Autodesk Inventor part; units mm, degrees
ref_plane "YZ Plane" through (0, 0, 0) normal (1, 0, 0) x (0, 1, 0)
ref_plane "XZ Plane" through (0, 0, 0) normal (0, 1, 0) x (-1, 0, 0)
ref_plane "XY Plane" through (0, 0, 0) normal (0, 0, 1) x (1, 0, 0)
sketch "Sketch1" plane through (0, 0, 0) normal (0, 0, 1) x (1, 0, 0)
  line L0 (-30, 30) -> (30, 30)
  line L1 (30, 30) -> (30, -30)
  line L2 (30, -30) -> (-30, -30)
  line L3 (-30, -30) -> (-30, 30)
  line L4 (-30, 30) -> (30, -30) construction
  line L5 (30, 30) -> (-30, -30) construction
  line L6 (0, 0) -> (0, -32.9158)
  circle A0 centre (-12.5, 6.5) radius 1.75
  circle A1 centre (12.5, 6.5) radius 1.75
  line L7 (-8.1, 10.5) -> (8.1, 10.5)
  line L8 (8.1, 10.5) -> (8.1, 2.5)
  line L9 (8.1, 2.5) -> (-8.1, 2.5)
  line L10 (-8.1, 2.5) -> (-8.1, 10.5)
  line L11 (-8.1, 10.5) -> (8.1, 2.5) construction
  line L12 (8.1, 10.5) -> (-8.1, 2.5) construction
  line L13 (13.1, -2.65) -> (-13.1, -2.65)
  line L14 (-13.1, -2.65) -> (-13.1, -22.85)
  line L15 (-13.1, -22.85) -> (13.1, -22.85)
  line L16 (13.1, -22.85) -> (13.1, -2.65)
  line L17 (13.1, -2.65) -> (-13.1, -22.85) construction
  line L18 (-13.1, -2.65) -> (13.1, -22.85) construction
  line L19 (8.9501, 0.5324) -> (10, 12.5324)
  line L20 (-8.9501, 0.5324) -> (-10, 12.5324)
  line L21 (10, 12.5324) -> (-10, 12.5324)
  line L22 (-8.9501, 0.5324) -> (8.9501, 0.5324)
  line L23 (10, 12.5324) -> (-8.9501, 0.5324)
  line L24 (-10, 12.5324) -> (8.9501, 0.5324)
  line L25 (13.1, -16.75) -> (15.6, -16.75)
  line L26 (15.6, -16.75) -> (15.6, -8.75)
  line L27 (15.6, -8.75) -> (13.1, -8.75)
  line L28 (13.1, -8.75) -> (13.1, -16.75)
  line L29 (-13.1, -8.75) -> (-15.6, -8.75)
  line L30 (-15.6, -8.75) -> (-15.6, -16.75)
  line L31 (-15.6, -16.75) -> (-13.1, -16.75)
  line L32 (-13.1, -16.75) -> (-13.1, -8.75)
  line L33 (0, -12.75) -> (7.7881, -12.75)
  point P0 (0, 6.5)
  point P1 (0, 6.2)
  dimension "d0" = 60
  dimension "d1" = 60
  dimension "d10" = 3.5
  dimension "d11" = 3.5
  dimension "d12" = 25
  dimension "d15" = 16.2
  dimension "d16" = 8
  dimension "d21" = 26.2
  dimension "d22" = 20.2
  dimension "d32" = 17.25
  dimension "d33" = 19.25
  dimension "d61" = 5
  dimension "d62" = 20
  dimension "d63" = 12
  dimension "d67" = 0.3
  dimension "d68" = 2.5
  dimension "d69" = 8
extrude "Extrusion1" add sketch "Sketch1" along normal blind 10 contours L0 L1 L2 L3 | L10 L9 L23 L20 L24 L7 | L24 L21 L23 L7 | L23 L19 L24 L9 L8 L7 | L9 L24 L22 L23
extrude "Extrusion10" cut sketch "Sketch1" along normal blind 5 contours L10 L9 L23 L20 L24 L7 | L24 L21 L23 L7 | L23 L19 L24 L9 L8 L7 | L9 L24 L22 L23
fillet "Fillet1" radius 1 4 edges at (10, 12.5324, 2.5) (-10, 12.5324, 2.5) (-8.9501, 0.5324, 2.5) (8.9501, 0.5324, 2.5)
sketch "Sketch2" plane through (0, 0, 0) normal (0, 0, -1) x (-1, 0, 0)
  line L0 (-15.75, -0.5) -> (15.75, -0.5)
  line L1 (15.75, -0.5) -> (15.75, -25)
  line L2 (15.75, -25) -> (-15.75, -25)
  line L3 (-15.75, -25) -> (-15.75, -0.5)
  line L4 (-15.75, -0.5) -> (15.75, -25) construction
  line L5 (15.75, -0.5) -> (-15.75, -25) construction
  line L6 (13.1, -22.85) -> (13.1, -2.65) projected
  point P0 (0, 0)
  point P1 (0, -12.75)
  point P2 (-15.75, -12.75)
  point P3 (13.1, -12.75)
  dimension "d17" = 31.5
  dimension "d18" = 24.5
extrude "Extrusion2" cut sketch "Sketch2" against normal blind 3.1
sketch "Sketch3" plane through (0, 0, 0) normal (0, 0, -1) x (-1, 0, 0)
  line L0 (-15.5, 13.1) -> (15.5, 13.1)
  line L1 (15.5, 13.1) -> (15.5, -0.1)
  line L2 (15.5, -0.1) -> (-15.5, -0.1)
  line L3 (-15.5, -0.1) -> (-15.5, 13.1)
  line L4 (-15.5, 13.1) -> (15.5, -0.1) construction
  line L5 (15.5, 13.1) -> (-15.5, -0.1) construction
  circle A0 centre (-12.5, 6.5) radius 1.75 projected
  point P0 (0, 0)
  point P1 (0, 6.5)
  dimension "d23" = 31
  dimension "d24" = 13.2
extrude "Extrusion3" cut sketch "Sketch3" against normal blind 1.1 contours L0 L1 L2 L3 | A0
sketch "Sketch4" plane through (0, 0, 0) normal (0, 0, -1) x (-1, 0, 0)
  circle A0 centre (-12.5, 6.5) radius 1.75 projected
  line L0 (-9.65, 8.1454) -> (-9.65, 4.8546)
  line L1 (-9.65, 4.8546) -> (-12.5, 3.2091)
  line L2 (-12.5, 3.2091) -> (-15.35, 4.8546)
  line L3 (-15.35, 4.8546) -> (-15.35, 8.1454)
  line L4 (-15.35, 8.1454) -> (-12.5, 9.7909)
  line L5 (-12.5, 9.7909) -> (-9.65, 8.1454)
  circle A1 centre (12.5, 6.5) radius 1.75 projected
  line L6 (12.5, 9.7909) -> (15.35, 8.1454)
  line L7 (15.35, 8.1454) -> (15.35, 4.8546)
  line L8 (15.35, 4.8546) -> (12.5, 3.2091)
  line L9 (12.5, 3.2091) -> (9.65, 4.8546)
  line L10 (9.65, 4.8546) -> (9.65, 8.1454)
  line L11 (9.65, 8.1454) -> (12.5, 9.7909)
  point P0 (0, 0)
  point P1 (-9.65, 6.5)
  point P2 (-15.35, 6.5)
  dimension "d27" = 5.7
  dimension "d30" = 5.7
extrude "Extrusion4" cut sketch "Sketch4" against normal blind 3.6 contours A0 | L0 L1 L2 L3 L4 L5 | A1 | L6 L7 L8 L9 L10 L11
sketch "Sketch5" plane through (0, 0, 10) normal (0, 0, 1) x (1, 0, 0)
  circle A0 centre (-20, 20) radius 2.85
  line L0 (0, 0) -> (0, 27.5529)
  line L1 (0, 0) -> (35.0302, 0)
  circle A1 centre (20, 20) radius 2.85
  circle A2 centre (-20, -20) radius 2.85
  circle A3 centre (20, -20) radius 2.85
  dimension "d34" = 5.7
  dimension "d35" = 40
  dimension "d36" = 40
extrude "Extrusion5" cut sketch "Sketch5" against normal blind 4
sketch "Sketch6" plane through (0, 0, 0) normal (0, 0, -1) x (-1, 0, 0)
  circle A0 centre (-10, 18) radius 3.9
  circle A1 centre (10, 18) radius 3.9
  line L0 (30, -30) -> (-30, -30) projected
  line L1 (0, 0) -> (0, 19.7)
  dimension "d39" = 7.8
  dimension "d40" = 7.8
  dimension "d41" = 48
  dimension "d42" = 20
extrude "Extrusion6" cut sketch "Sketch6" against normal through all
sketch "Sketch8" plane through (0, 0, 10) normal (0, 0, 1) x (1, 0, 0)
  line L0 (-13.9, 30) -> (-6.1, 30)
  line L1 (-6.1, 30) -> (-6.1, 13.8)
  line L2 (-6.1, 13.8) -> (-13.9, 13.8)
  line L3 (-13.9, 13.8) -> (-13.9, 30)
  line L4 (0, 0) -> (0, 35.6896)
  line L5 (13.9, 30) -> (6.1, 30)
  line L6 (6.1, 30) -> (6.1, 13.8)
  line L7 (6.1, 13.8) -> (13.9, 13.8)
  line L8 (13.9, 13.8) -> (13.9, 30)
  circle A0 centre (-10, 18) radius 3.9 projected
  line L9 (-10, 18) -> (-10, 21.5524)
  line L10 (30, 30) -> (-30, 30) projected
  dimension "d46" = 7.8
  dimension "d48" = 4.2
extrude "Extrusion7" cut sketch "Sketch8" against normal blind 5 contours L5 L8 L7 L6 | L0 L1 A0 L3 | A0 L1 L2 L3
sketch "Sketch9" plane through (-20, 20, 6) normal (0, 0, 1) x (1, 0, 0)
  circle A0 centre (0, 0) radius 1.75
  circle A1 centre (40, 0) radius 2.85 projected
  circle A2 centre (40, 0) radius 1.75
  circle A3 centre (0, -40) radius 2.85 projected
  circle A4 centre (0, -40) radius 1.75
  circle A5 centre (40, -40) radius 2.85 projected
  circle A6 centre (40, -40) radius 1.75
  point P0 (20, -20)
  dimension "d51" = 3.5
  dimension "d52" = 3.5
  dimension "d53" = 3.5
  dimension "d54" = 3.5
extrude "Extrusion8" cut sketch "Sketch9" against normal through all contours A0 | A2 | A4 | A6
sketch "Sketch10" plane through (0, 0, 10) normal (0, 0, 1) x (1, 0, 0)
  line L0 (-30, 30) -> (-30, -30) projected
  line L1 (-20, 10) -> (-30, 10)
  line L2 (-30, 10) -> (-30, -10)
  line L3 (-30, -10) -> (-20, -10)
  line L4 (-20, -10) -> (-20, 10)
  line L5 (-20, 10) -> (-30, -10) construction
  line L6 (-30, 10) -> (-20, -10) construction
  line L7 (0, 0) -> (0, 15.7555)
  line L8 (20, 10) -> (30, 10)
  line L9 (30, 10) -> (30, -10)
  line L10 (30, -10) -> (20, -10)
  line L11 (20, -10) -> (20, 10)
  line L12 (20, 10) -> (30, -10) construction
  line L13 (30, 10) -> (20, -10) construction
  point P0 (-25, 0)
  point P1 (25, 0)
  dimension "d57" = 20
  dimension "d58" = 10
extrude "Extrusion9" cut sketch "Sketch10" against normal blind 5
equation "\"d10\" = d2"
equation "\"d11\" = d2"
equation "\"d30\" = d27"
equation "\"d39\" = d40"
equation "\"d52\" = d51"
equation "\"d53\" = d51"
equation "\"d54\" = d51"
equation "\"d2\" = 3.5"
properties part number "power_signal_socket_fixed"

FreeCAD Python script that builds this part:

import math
import FreeCAD as App
import Part
import Sketcher
from FreeCAD import Vector
Q = App.Units.Quantity


def edges_at(feature, points):
    """Names of the edges that pass closest to the given points."""
    edges = feature.Shape.Edges
    near = lambda p: min(range(len(edges)), key=lambda i: edges[i].distToShape(Part.Vertex(*p))[0])
    return sorted({f"Edge{near(p) + 1}" for p in points})

doc = App.newDocument("Part")
params = doc.addObject("Spreadsheet::Sheet", "Params")
for row, (alias, value) in enumerate([
    ("sketch1_diameter", "3.5 mm"),
    ("sketch1_width", "60 mm"),
    ("sketch1_height", "8 mm"),
    ("sketch1_width2", "2.5 mm"),
    ("sketch1_width3", "26.2 mm"),
    ("pad1_length", "10 mm"),
    ("sketch2_width", "20 mm"),
    ("sketch2_height", "8 mm"),
    ("sketch2_width2", "16.2 mm"),
    ("pocket1_length", "5 mm"),
    ("fillet_radius", "1 mm"),
    ("sketch3_width", "31.5 mm"),
    ("sketch3_height", "24.5 mm"),
    ("pocket2_length", "3.1 mm"),
    ("sketch4_width", "31 mm"),
    ("sketch4_height", "13.2 mm"),
    ("pocket3_length", "1.1 mm"),
    ("pocket4_length", "3.6 mm"),
    ("sketch6_diameter", "5.7 mm"),
    ("pocket5_length", "4 mm"),
    ("sketch7_diameter", "7.8 mm"),
    ("sketch8_radius", "3.9 mm"),
    ("sketch8_height", "4.2 mm"),
    ("sketch8_height2", "12 mm"),
    ("pocket7_length", "5 mm"),
    ("sketch9_diameter", "3.5 mm"),
    ("sketch10_width", "10 mm"),
    ("sketch10_height", "20 mm"),
    ("pocket9_length", "5 mm"),
], start=1):
    params.set(f"A{row}", alias)
    params.set(f"B{row}", "=" + value)
    params.setAlias(f"B{row}", alias)

body = doc.addObject("PartDesign::Body", "Body")

sketch1 = body.newObject("Sketcher::SketchObject", "Sketch")
sketch1.AttachmentSupport = (doc.getObject("XY_Plane"), [""])
sketch1.MapMode = "FlatFace"
sketch1.addGeometry([
    Part.LineSegment(Vector(30, 30, 0), Vector(-30, 30, 0)),
    Part.LineSegment(Vector(-30, 30, 0), Vector(-30, -30, 0)),
    Part.LineSegment(Vector(-30, -30, 0), Vector(0, -30, 0)),
    Part.LineSegment(Vector(0, -30, 0), Vector(30, -30, 0)),
    Part.LineSegment(Vector(30, -30, 0), Vector(30, 30, 0)),
    Part.LineSegment(Vector(13.1, -22.9, 0), Vector(0, -22.9, 0)),
    Part.LineSegment(Vector(0, -22.9, 0), Vector(-13.1, -22.9, 0)),
    Part.LineSegment(Vector(-13.1, -22.9, 0), Vector(-13.1, -16.8, 0)),
    Part.LineSegment(Vector(-13.1, -16.8, 0), Vector(-15.6, -16.8, 0)),
    Part.LineSegment(Vector(-15.6, -16.8, 0), Vector(-15.6, -8.8, 0)),
    Part.LineSegment(Vector(-15.6, -8.8, 0), Vector(-13.1, -8.8, 0)),
    Part.LineSegment(Vector(-13.1, -8.8, 0), Vector(-13.1, -2.6, 0)),
    Part.LineSegment(Vector(-13.1, -2.6, 0), Vector(13.1, -2.6, 0)),
    Part.LineSegment(Vector(13.1, -2.6, 0), Vector(13.1, -8.8, 0)),
    Part.LineSegment(Vector(13.1, -8.8, 0), Vector(15.6, -8.8, 0)),
    Part.LineSegment(Vector(15.6, -8.8, 0), Vector(15.6, -16.8, 0)),
    Part.LineSegment(Vector(15.6, -16.8, 0), Vector(13.1, -16.8, 0)),
    Part.LineSegment(Vector(13.1, -16.8, 0), Vector(13.1, -22.9, 0)),
    Part.Circle(Vector(-12.5, 6.5, 0), Vector(0, 0, 1), 1.8),
    Part.Circle(Vector(12.5, 6.5, 0), Vector(0, 0, 1), 1.8),
    Part.LineSegment(Vector(-8.1, 2.5, 0), Vector(-8.1, 10.5, 0)),
    Part.LineSegment(Vector(-8.1, 10.5, 0), Vector(8.1, 10.5, 0)),
    Part.LineSegment(Vector(8.1, 10.5, 0), Vector(8.1, 2.5, 0)),
    Part.LineSegment(Vector(8.1, 2.5, 0), Vector(-8.1, 2.5, 0)),
], False)
sketch1.addConstraint([
    Sketcher.Constraint("Coincident", 0, 2, 1, 1),
    Sketcher.Constraint("Coincident", 1, 2, 2, 1),
    Sketcher.Constraint("Coincident", 2, 2, 3, 1),
    Sketcher.Constraint("Coincident", 3, 2, 4, 1),
    Sketcher.Constraint("Coincident", 4, 2, 0, 1),
    Sketcher.Constraint("Coincident", 5, 2, 6, 1),
    Sketcher.Constraint("Coincident", 6, 2, 7, 1),
    Sketcher.Constraint("Coincident", 7, 2, 8, 1),
    Sketcher.Constraint("Coincident", 8, 2, 9, 1),
    Sketcher.Constraint("Coincident", 9, 2, 10, 1),
    Sketcher.Constraint("Coincident", 10, 2, 11, 1),
    Sketcher.Constraint("Coincident", 11, 2, 12, 1),
    Sketcher.Constraint("Coincident", 12, 2, 13, 1),
    Sketcher.Constraint("Coincident", 13, 2, 14, 1),
    Sketcher.Constraint("Coincident", 14, 2, 15, 1),
    Sketcher.Constraint("Coincident", 15, 2, 16, 1),
    Sketcher.Constraint("Coincident", 16, 2, 17, 1),
    Sketcher.Constraint("Coincident", 17, 2, 5, 1),
    Sketcher.Constraint("Coincident", 20, 2, 21, 1),
    Sketcher.Constraint("Coincident", 21, 2, 22, 1),
    Sketcher.Constraint("Coincident", 22, 2, 23, 1),
    Sketcher.Constraint("Coincident", 23, 2, 20, 1),
    Sketcher.Constraint("Horizontal", 0),
    Sketcher.Constraint("Vertical", 1),
    Sketcher.Constraint("Horizontal", 2),
    Sketcher.Constraint("Horizontal", 3),
    Sketcher.Constraint("Vertical", 4),
    Sketcher.Constraint("Horizontal", 5),
    Sketcher.Constraint("Horizontal", 6),
    Sketcher.Constraint("Vertical", 7),
    Sketcher.Constraint("Horizontal", 8),
    Sketcher.Constraint("Vertical", 9),
    Sketcher.Constraint("Horizontal", 10),
    Sketcher.Constraint("Vertical", 11),
    Sketcher.Constraint("Horizontal", 12),
    Sketcher.Constraint("Vertical", 13),
    Sketcher.Constraint("Horizontal", 14),
    Sketcher.Constraint("Vertical", 15),
    Sketcher.Constraint("Horizontal", 16),
    Sketcher.Constraint("Vertical", 17),
    Sketcher.Constraint("Vertical", 20),
    Sketcher.Constraint("Horizontal", 21),
    Sketcher.Constraint("Vertical", 22),
    Sketcher.Constraint("Horizontal", 23),
    Sketcher.Constraint("Equal", 18, 19),
    Sketcher.Constraint("Symmetric", 0, 2, 3, 2, -1, 1),
    Sketcher.Constraint("Symmetric", 18, 3, 19, 3, -2),
    Sketcher.Constraint("Symmetric", 10, 2, 13, 2, -2),
    Sketcher.Constraint("Symmetric", 8, 2, 15, 2, -2),
    Sketcher.Constraint("PointOnObject", 2, 2, -2),
    Sketcher.Constraint("PointOnObject", 5, 2, -2),
    Sketcher.Constraint("Vertical", 7, 2, 10, 2),
    Sketcher.Constraint("Vertical", 13, 2, 16, 2),
    Sketcher.Constraint("Equal", 0, 1),
    Sketcher.Constraint("Equal", 7, 11),
    Sketcher.Constraint("Equal", 15, 20),
    Sketcher.Constraint("Diameter", 18, Q("3.5 mm")),
    Sketcher.Constraint("DistanceX", 0, 2, 0, 1, Q("60 mm")),
    Sketcher.Constraint("DistanceY", 9, 1, 9, 2, Q("8 mm")),
    Sketcher.Constraint("DistanceX", 8, 2, 8, 1, Q("2.5 mm")),
    Sketcher.Constraint("DistanceX", 12, 1, 12, 2, Q("26.2 mm")),
    Sketcher.Constraint("DistanceX", 21, 1, 21, 2, Q("16.2 mm")),
    Sketcher.Constraint("DistanceX", 18, 3, 19, 3, Q("25 mm")),
    Sketcher.Constraint("DistanceX", 11, 2, 20, 2, Q("5 mm")),
    Sketcher.Constraint("DistanceY", -1, 1, 22, 2, Q("2.5 mm")),
    Sketcher.Constraint("DistanceY", 5, 2, 12, 2, Q("20.2 mm")),
    Sketcher.Constraint("DistanceY", 10, 2, 20, 2, Q("19.25 mm")),
    Sketcher.Constraint("DistanceY", 18, 3, 20, 2, Q("4 mm")),
])
sketch1.setExpression("Constraints[56]", "Params.sketch1_diameter")
sketch1.setExpression("Constraints[57]", "Params.sketch1_width")
sketch1.setExpression("Constraints[58]", "Params.sketch1_height")
sketch1.setExpression("Constraints[59]", "Params.sketch1_width2")
sketch1.setExpression("Constraints[60]", "Params.sketch1_width3")
pad1 = body.newObject("PartDesign::Pad", "Pad")
pad1.Profile = sketch1
pad1.setExpression("Length", "Params.pad1_length")

sketch2 = body.newObject("Sketcher::SketchObject", "Sketch001")
sketch2.AttachmentSupport = (doc.getObject("XY_Plane"), [""])
sketch2.MapMode = "FlatFace"
sketch2.addGeometry([
    Part.LineSegment(Vector(-10, 13, 0), Vector(-9, 1, 0)),
    Part.LineSegment(Vector(-9, 1, 0), Vector(9, 1, 0)),
    Part.LineSegment(Vector(9, 1, 0), Vector(10, 13, 0)),
    Part.LineSegment(Vector(10, 13, 0), Vector(-10, 13, 0)),
    Part.LineSegment(Vector(-8, 2, 0), Vector(-8, 10, 0)),
    Part.LineSegment(Vector(-8, 10, 0), Vector(8, 10, 0)),
    Part.LineSegment(Vector(8, 10, 0), Vector(8, 2, 0)),
    Part.LineSegment(Vector(8, 2, 0), Vector(-8, 2, 0)),
], False)
sketch2.addConstraint([
    Sketcher.Constraint("Coincident", 0, 2, 1, 1),
    Sketcher.Constraint("Coincident", 1, 2, 2, 1),
    Sketcher.Constraint("Coincident", 2, 2, 3, 1),
    Sketcher.Constraint("Coincident", 3, 2, 0, 1),
    Sketcher.Constraint("Coincident", 4, 2, 5, 1),
    Sketcher.Constraint("Coincident", 5, 2, 6, 1),
    Sketcher.Constraint("Coincident", 6, 2, 7, 1),
    Sketcher.Constraint("Coincident", 7, 2, 4, 1),
    Sketcher.Constraint("Horizontal", 1),
    Sketcher.Constraint("Horizontal", 3),
    Sketcher.Constraint("Vertical", 4),
    Sketcher.Constraint("Horizontal", 5),
    Sketcher.Constraint("Vertical", 6),
    Sketcher.Constraint("Horizontal", 7),
    Sketcher.Constraint("Equal", 0, 2),
    Sketcher.Constraint("DistanceX", 3, 2, 3, 1, Q("20 mm")),
    Sketcher.Constraint("DistanceY", 4, 1, 4, 2, Q("8 mm")),
    Sketcher.Constraint("DistanceX", 5, 1, 5, 2, Q("16.2 mm")),
    Sketcher.Constraint("DistanceY", 1, 2, 2, 2, Q("12 mm")),
    Sketcher.Constraint("DistanceY", -1, 1, 6, 2, Q("2.5 mm")),
    Sketcher.Constraint("Angle", 0, Q("-84.9998 deg")),
    Sketcher.Constraint("DistanceX", -1, 1, 2, 2, Q("10 mm")),
    Sketcher.Constraint("DistanceX", 4, 2, -1, 1, Q("8.1 mm")),
    Sketcher.Constraint("DistanceY", -1, 1, 0, 2, Q("0.5324 mm")),
])
sketch2.setExpression("Constraints[15]", "Params.sketch2_width")
sketch2.setExpression("Constraints[16]", "Params.sketch2_height")
sketch2.setExpression("Constraints[17]", "Params.sketch2_width2")
pocket1 = body.newObject("PartDesign::Pocket", "Pocket")
pocket1.Profile = sketch2
pocket1.setExpression("Length", "Params.pocket1_length")
pocket1.Reversed = True
doc.recompute()

fillet = body.newObject("PartDesign::Fillet", "Fillet")
fillet.Base = (pocket1, edges_at(pocket1, [
    (10, 12.532, 2.5),
    (-10, 12.532, 2.5),
    (-8.95, 0.532, 2.5),
    (8.95, 0.532, 2.5),
]))
fillet.setExpression("Radius", "Params.fillet_radius")

sketch3 = body.newObject("Sketcher::SketchObject", "Sketch002")
sketch3.AttachmentSupport = (doc.getObject("XY_Plane"), [""])
sketch3.MapMode = "FlatFace"
sketch3.addGeometry([
    Part.LineSegment(Vector(-16, 0, 0), Vector(16, 0, 0)),
    Part.LineSegment(Vector(16, 0, 0), Vector(16, -25, 0)),
    Part.LineSegment(Vector(16, -25, 0), Vector(-16, -25, 0)),
    Part.LineSegment(Vector(-16, -25, 0), Vector(-16, 0, 0)),
], False)
sketch3.addConstraint([
    Sketcher.Constraint("Coincident", 0, 2, 1, 1),
    Sketcher.Constraint("Coincident", 1, 2, 2, 1),
    Sketcher.Constraint("Coincident", 2, 2, 3, 1),
    Sketcher.Constraint("Coincident", 3, 2, 0, 1),
    Sketcher.Constraint("Horizontal", 0),
    Sketcher.Constraint("Vertical", 1),
    Sketcher.Constraint("Horizontal", 2),
    Sketcher.Constraint("Vertical", 3),
    Sketcher.Constraint("DistanceX", 0, 1, 0, 2, Q("31.5 mm")),
    Sketcher.Constraint("DistanceY", 1, 2, 1, 1, Q("24.5 mm")),
    Sketcher.Constraint("DistanceY", 1, 2, -1, 1, Q("25 mm")),
    Sketcher.Constraint("DistanceX", -1, 1, 0, 2, Q("15.75 mm")),
])
sketch3.setExpression("Constraints[8]", "Params.sketch3_width")
sketch3.setExpression("Constraints[9]", "Params.sketch3_height")
pocket2 = body.newObject("PartDesign::Pocket", "Pocket001")
pocket2.Profile = sketch3
pocket2.setExpression("Length", "Params.pocket2_length")
pocket2.Reversed = True

sketch4 = body.newObject("Sketcher::SketchObject", "Sketch003")
sketch4.AttachmentSupport = (doc.getObject("XY_Plane"), [""])
sketch4.MapMode = "FlatFace"
sketch4.addGeometry([
    Part.LineSegment(Vector(-16, 13, 0), Vector(16, 13, 0)),
    Part.LineSegment(Vector(16, 13, 0), Vector(16, 0, 0)),
    Part.LineSegment(Vector(16, 0, 0), Vector(-16, 0, 0)),
    Part.LineSegment(Vector(-16, 0, 0), Vector(-16, 13, 0)),
], False)
sketch4.addConstraint([
    Sketcher.Constraint("Coincident", 0, 2, 1, 1),
    Sketcher.Constraint("Coincident", 1, 2, 2, 1),
    Sketcher.Constraint("Coincident", 2, 2, 3, 1),
    Sketcher.Constraint("Coincident", 3, 2, 0, 1),
    Sketcher.Constraint("Horizontal", 0),
    Sketcher.Constraint("Vertical", 1),
    Sketcher.Constraint("Horizontal", 2),
    Sketcher.Constraint("Vertical", 3),
    Sketcher.Constraint("DistanceX", 0, 1, 0, 2, Q("31 mm")),
    Sketcher.Constraint("DistanceY", 1, 2, 1, 1, Q("13.2 mm")),
    Sketcher.Constraint("DistanceX", -1, 1, 0, 2, Q("15.5 mm")),
    Sketcher.Constraint("DistanceY", -1, 1, 0, 2, Q("13.1 mm")),
])
sketch4.setExpression("Constraints[8]", "Params.sketch4_width")
sketch4.setExpression("Constraints[9]", "Params.sketch4_height")
pocket3 = body.newObject("PartDesign::Pocket", "Pocket002")
pocket3.Profile = sketch4
pocket3.setExpression("Length", "Params.pocket3_length")
pocket3.Reversed = True

sketch5 = body.newObject("Sketcher::SketchObject", "Sketch004")
sketch5.AttachmentSupport = (doc.getObject("XY_Plane"), [""])
sketch5.MapMode = "FlatFace"
sketch5.addGeometry([
    Part.LineSegment(Vector(9.7, 4.9, 0), Vector(9.7, 8.1, 0)),
    Part.LineSegment(Vector(9.7, 8.1, 0), Vector(12.5, 9.8, 0)),
    Part.LineSegment(Vector(12.5, 9.8, 0), Vector(15.3, 8.1, 0)),
    Part.LineSegment(Vector(15.3, 8.1, 0), Vector(15.3, 4.9, 0)),
    Part.LineSegment(Vector(15.3, 4.9, 0), Vector(12.5, 3.2, 0)),
    Part.LineSegment(Vector(12.5, 3.2, 0), Vector(9.7, 4.9, 0)),
    Part.LineSegment(Vector(-15.3, 8.1, 0), Vector(-12.5, 9.8, 0)),
    Part.LineSegment(Vector(-12.5, 9.8, 0), Vector(-9.7, 8.1, 0)),
    Part.LineSegment(Vector(-9.7, 8.1, 0), Vector(-9.7, 4.9, 0)),
    Part.LineSegment(Vector(-9.7, 4.9, 0), Vector(-12.5, 3.2, 0)),
    Part.LineSegment(Vector(-12.5, 3.2, 0), Vector(-15.3, 4.9, 0)),
    Part.LineSegment(Vector(-15.3, 4.9, 0), Vector(-15.3, 8.1, 0)),
], False)
sketch5.addConstraint([
    Sketcher.Constraint("Coincident", 0, 2, 1, 1),
    Sketcher.Constraint("Coincident", 1, 2, 2, 1),
    Sketcher.Constraint("Coincident", 2, 2, 3, 1),
    Sketcher.Constraint("Coincident", 3, 2, 4, 1),
    Sketcher.Constraint("Coincident", 4, 2, 5, 1),
    Sketcher.Constraint("Coincident", 5, 2, 0, 1),
    Sketcher.Constraint("Coincident", 6, 2, 7, 1),
    Sketcher.Constraint("Coincident", 7, 2, 8, 1),
    Sketcher.Constraint("Coincident", 8, 2, 9, 1),
    Sketcher.Constraint("Coincident", 9, 2, 10, 1),
    Sketcher.Constraint("Coincident", 10, 2, 11, 1),
    Sketcher.Constraint("Coincident", 11, 2, 6, 1),
    Sketcher.Constraint("Vertical", 0),
    Sketcher.Constraint("Vertical", 3),
    Sketcher.Constraint("Vertical", 8),
    Sketcher.Constraint("Vertical", 11),
    Sketcher.Constraint("Symmetric", 1, 2, 6, 2, -2),
    Sketcher.Constraint("Symmetric", 0, 2, 7, 2, -2),
    Sketcher.Constraint("Symmetric", 4, 2, 9, 2, -2),
    Sketcher.Constraint("Symmetric", 3, 2, 10, 2, -2),
    Sketcher.Constraint("Parallel", 1, 4),
    Sketcher.Constraint("Parallel", 2, 5),
    Sketcher.Constraint("Parallel", 4, 6),
    Sketcher.Constraint("Parallel", 5, 7),
    Sketcher.Constraint("Parallel", 6, 9),
    Sketcher.Constraint("Horizontal", 0, 2, 2, 2),
    Sketcher.Constraint("Horizontal", 3, 2, 5, 2),
    Sketcher.Constraint("DistanceX", 0, 2, 2, 2, Q("5.7 mm")),
    Sketcher.Constraint("Angle", 1, Q("30.0008 deg")),
    Sketcher.Constraint("DistanceX", 6, 2, 1, 2, Q("25 mm")),
    Sketcher.Constraint("DistanceY", 0, 1, 0, 2, Q("3.2908 mm")),
    Sketcher.Constraint("DistanceY", -1, 1, 1, 2, Q("9.791 mm")),
])
pocket4 = body.newObject("PartDesign::Pocket", "Pocket003")
pocket4.Profile = sketch5
pocket4.setExpression("Length", "Params.pocket4_length")
pocket4.Reversed = True

sketch6 = body.newObject("Sketcher::SketchObject", "Sketch005")
sketch6.AttachmentSupport = (doc.getObject("XY_Plane"), [""])
sketch6.MapMode = "FlatFace"
sketch6.AttachmentOffset = App.Placement(Vector(0, 0, 10), App.Rotation())
sketch6.addGeometry([
    Part.Circle(Vector(-20, 20, 0), Vector(0, 0, 1), 2.9),
    Part.Circle(Vector(20, 20, 0), Vector(0, 0, 1), 2.9),
    Part.Circle(Vector(-20, -20, 0), Vector(0, 0, 1), 2.9),
    Part.Circle(Vector(20, -20, 0), Vector(0, 0, 1), 2.9),
], False)
sketch6.addConstraint([
    Sketcher.Constraint("Equal", 0, 1),
    Sketcher.Constraint("Equal", 1, 2),
    Sketcher.Constraint("Equal", 2, 3),
    Sketcher.Constraint("Symmetric", 1, 3, 2, 3, -1, 1),
    Sketcher.Constraint("Symmetric", 0, 3, 3, 3, -1, 1),
    Sketcher.Constraint("Symmetric", 0, 3, 1, 3, -2),
    Sketcher.Constraint("Diameter", 0, Q("5.7 mm")),
    Sketcher.Constraint("DistanceX", 0, 3, 1, 3, Q("40 mm")),
    Sketcher.Constraint("DistanceY", 2, 3, 0, 3, Q("40 mm")),
])
sketch6.setExpression("Constraints[6]", "Params.sketch6_diameter")
pocket5 = body.newObject("PartDesign::Pocket", "Pocket004")
pocket5.Profile = sketch6
pocket5.setExpression("Length", "Params.pocket5_length")

sketch7 = body.newObject("Sketcher::SketchObject", "Sketch006")
sketch7.AttachmentSupport = (doc.getObject("XY_Plane"), [""])
sketch7.MapMode = "FlatFace"
sketch7.addGeometry([
    Part.Circle(Vector(10, 18, 0), Vector(0, 0, 1), 3.9),
    Part.Circle(Vector(-10, 18, 0), Vector(0, 0, 1), 3.9),
], False)
sketch7.addConstraint([
    Sketcher.Constraint("Equal", 0, 1),
    Sketcher.Constraint("Symmetric", 0, 3, 1, 3, -2),
    Sketcher.Constraint("Diameter", 0, Q("7.8 mm")),
    Sketcher.Constraint("DistanceX", 1, 3, 0, 3, Q("20 mm")),
    Sketcher.Constraint("DistanceY", -1, 1, 0, 3, Q("18 mm")),
])
sketch7.setExpression("Constraints[2]", "Params.sketch7_diameter")
pocket6 = body.newObject("PartDesign::Pocket", "Pocket005")
pocket6.Profile = sketch7
pocket6.Type = "ThroughAll"
pocket6.Reversed = True

sketch8 = body.newObject("Sketcher::SketchObject", "Sketch007")
sketch8.AttachmentSupport = (doc.getObject("XY_Plane"), [""])
sketch8.MapMode = "FlatFace"
sketch8.AttachmentOffset = App.Placement(Vector(0, 0, 10), App.Rotation())
sketch8.addGeometry([
    Part.LineSegment(Vector(13.9, 30, 0), Vector(6.1, 30, 0)),
    Part.LineSegment(Vector(6.1, 30, 0), Vector(6.1, 13.8, 0)),
    Part.LineSegment(Vector(6.1, 13.8, 0), Vector(13.9, 13.8, 0)),
    Part.LineSegment(Vector(13.9, 13.8, 0), Vector(13.9, 30, 0)),
    Part.LineSegment(Vector(-6.1, 30, 0), Vector(-13.9, 30, 0)),
    Part.LineSegment(Vector(-13.9, 30, 0), Vector(-13.9, 18, 0)),
    Part.ArcOfCircle(Part.Circle(Vector(-10, 18, 0), Vector(0, 0, 1), 3.9), math.radians(0), math.radians(180)),
    Part.LineSegment(Vector(-6.1, 18, 0), Vector(-6.1, 30, 0)),
    Part.ArcOfCircle(Part.Circle(Vector(-10, 18, 0), Vector(0, 0, 1), 3.9), math.radians(180), math.radians(360)),
    Part.LineSegment(Vector(-13.9, 18, 0), Vector(-13.9, 13.8, 0)),
    Part.LineSegment(Vector(-13.9, 13.8, 0), Vector(-6.1, 13.8, 0)),
    Part.LineSegment(Vector(-6.1, 13.8, 0), Vector(-6.1, 18, 0)),
], False)
sketch8.addConstraint([
    Sketcher.Constraint("Coincident", 0, 2, 1, 1),
    Sketcher.Constraint("Coincident", 1, 2, 2, 1),
    Sketcher.Constraint("Coincident", 2, 2, 3, 1),
    Sketcher.Constraint("Coincident", 3, 2, 0, 1),
    Sketcher.Constraint("Coincident", 4, 2, 5, 1),
    Sketcher.Constraint("Tangent", 5, 2, 6, 2),
    Sketcher.Constraint("Tangent", 6, 1, 7, 1),
    Sketcher.Constraint("Coincident", 7, 2, 4, 1),
    Sketcher.Constraint("Tangent", 8, 1, 9, 1),
    Sketcher.Constraint("Coincident", 9, 2, 10, 1),
    Sketcher.Constraint("Coincident", 10, 2, 11, 1),
    Sketcher.Constraint("Tangent", 11, 2, 8, 2),
    Sketcher.Constraint("Horizontal", 0),
    Sketcher.Constraint("Vertical", 1),
    Sketcher.Constraint("Horizontal", 2),
    Sketcher.Constraint("Vertical", 3),
    Sketcher.Constraint("Horizontal", 4),
    Sketcher.Constraint("Vertical", 5),
    Sketcher.Constraint("Vertical", 7),
    Sketcher.Constraint("Vertical", 9),
    Sketcher.Constraint("Horizontal", 10),
    Sketcher.Constraint("Vertical", 11),
    Sketcher.Constraint("Coincident", 8, 3, 6, 3),
    Sketcher.Constraint("Equal", 6, 8),
    Sketcher.Constraint("Symmetric", 3, 2, 4, 2, -2),
    Sketcher.Constraint("Symmetric", 1, 2, 10, 2, -2),
    Sketcher.Constraint("Radius", 6, Q("3.9 mm")),
    Sketcher.Constraint("DistanceY", 9, 2, 9, 1, Q("4.2 mm")),
    Sketcher.Constraint("DistanceY", 5, 2, 5, 1, Q("12 mm")),
    Sketcher.Constraint("DistanceX", 6, 3, -1, 1, Q("10 mm")),
    Sketcher.Constraint("DistanceY", -1, 1, 6, 3, Q("18 mm")),
])
sketch8.setExpression("Constraints[26]", "Params.sketch8_radius")
sketch8.setExpression("Constraints[27]", "Params.sketch8_height")
sketch8.setExpression("Constraints[28]", "Params.sketch8_height2")
pocket7 = body.newObject("PartDesign::Pocket", "Pocket006")
pocket7.Profile = sketch8
pocket7.setExpression("Length", "Params.pocket7_length")

sketch9 = body.newObject("Sketcher::SketchObject", "Sketch008")
sketch9.AttachmentSupport = (doc.getObject("XY_Plane"), [""])
sketch9.MapMode = "FlatFace"
sketch9.AttachmentOffset = App.Placement(Vector(0, 0, 6), App.Rotation())
sketch9.addGeometry([
    Part.Circle(Vector(-20, 20, 0), Vector(0, 0, 1), 1.8),
    Part.Circle(Vector(20, 20, 0), Vector(0, 0, 1), 1.8),
    Part.Circle(Vector(-20, -20, 0), Vector(0, 0, 1), 1.8),
    Part.Circle(Vector(20, -20, 0), Vector(0, 0, 1), 1.8),
], False)
sketch9.addConstraint([
    Sketcher.Constraint("Equal", 0, 1),
    Sketcher.Constraint("Equal", 1, 2),
    Sketcher.Constraint("Equal", 2, 3),
    Sketcher.Constraint("Symmetric", 1, 3, 2, 3, -1, 1),
    Sketcher.Constraint("Symmetric", 0, 3, 3, 3, -1, 1),
    Sketcher.Constraint("Symmetric", 0, 3, 1, 3, -2),
    Sketcher.Constraint("Diameter", 0, Q("3.5 mm")),
    Sketcher.Constraint("DistanceX", 0, 3, -1, 1, Q("20 mm")),
    Sketcher.Constraint("DistanceY", -1, 1, 0, 3, Q("20 mm")),
])
sketch9.setExpression("Constraints[6]", "Params.sketch9_diameter")
pocket8 = body.newObject("PartDesign::Pocket", "Pocket007")
pocket8.Profile = sketch9
pocket8.Type = "ThroughAll"

sketch10 = body.newObject("Sketcher::SketchObject", "Sketch009")
sketch10.AttachmentSupport = (doc.getObject("XY_Plane"), [""])
sketch10.MapMode = "FlatFace"
sketch10.AttachmentOffset = App.Placement(Vector(0, 0, 10), App.Rotation())
sketch10.addGeometry([
    Part.LineSegment(Vector(-20, 10, 0), Vector(-30, 10, 0)),
    Part.LineSegment(Vector(-30, 10, 0), Vector(-30, -10, 0)),
    Part.LineSegment(Vector(-30, -10, 0), Vector(-20, -10, 0)),
    Part.LineSegment(Vector(-20, -10, 0), Vector(-20, 10, 0)),
    Part.LineSegment(Vector(30, 10, 0), Vector(20, 10, 0)),
    Part.LineSegment(Vector(20, 10, 0), Vector(20, -10, 0)),
    Part.LineSegment(Vector(20, -10, 0), Vector(30, -10, 0)),
    Part.LineSegment(Vector(30, -10, 0), Vector(30, 10, 0)),
], False)
sketch10.addConstraint([
    Sketcher.Constraint("Coincident", 0, 2, 1, 1),
    Sketcher.Constraint("Coincident", 1, 2, 2, 1),
    Sketcher.Constraint("Coincident", 2, 2, 3, 1),
    Sketcher.Constraint("Coincident", 3, 2, 0, 1),
    Sketcher.Constraint("Coincident", 4, 2, 5, 1),
    Sketcher.Constraint("Coincident", 5, 2, 6, 1),
    Sketcher.Constraint("Coincident", 6, 2, 7, 1),
    Sketcher.Constraint("Coincident", 7, 2, 4, 1),
    Sketcher.Constraint("Horizontal", 0),
    Sketcher.Constraint("Vertical", 1),
    Sketcher.Constraint("Horizontal", 2),
    Sketcher.Constraint("Vertical", 3),
    Sketcher.Constraint("Horizontal", 4),
    Sketcher.Constraint("Vertical", 5),
    Sketcher.Constraint("Horizontal", 6),
    Sketcher.Constraint("Vertical", 7),
    Sketcher.Constraint("Symmetric", 2, 2, 4, 2, -1, 1),
    Sketcher.Constraint("Symmetric", 0, 2, 6, 2, -1, 1),
    Sketcher.Constraint("Horizontal", 3, 2, 4, 2),
    Sketcher.Constraint("DistanceX", 0, 2, 0, 1, Q("10 mm")),
    Sketcher.Constraint("DistanceY", 1, 2, 1, 1, Q("20 mm")),
    Sketcher.Constraint("DistanceX", 2, 2, -1, 1, Q("20 mm")),
])
sketch10.setExpression("Constraints[19]", "Params.sketch10_width")
sketch10.setExpression("Constraints[20]", "Params.sketch10_height")
pocket9 = body.newObject("PartDesign::Pocket", "Pocket008")
pocket9.Profile = sketch10
pocket9.setExpression("Length", "Params.pocket9_length")

doc.recompute()
